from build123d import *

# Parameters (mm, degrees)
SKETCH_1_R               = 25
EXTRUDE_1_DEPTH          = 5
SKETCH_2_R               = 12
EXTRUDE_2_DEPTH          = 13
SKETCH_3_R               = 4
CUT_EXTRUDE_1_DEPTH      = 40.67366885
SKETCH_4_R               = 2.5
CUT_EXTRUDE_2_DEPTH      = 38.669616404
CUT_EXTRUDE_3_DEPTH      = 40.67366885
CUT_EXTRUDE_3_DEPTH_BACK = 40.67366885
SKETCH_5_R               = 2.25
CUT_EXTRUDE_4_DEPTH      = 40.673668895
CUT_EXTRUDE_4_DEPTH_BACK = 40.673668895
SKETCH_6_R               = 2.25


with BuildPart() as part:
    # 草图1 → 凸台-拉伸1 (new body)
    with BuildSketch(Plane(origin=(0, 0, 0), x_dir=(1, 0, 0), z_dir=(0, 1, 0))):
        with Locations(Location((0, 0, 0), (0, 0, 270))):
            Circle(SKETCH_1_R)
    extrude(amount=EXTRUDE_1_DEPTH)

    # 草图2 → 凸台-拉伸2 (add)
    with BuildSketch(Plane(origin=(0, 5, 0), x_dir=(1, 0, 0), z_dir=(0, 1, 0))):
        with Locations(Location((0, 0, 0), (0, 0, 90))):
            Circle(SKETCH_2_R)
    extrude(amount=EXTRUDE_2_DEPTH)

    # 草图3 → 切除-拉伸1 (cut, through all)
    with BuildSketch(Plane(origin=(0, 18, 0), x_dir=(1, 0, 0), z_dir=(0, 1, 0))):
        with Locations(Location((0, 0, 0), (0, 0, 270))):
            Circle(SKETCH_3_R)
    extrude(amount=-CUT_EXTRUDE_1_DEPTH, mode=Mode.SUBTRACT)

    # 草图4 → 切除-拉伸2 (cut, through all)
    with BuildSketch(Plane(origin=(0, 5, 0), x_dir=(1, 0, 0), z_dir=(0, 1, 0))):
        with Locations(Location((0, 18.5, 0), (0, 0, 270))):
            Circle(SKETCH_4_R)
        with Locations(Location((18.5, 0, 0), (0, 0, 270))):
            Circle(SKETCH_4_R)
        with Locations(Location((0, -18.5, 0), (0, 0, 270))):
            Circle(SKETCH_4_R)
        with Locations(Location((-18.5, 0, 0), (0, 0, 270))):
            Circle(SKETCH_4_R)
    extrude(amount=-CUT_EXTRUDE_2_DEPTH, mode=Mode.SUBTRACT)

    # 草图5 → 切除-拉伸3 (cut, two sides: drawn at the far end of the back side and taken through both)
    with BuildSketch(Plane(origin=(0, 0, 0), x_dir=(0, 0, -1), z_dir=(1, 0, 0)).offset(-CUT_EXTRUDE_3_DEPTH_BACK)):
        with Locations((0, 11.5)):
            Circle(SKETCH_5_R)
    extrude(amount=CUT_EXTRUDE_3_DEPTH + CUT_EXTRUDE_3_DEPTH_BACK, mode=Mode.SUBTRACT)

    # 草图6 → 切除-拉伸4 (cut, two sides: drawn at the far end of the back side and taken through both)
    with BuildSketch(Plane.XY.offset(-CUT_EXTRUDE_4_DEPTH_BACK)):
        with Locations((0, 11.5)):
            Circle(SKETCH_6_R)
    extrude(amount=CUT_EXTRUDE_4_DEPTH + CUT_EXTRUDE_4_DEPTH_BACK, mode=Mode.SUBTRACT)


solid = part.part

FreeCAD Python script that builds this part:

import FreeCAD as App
import Part
import Sketcher

V = App.Vector

doc = App.newDocument("Part")
body = doc.addObject("PartDesign::Body", "Body")

sketch1 = body.newObject("Sketcher::SketchObject", "Sketch")
sketch1.AttachmentSupport = (doc.getObject("XZ_Plane"), [""])
sketch1.MapMode = "FlatFace"
sketch1.addGeometry(Part.Circle(V(0, 0, 0), V(0, 0, 1), 25), False)
sketch1.addConstraint(Sketcher.Constraint("Coincident", 0, 3, -1, 1))
sketch1.addConstraint(Sketcher.Constraint("Diameter", 0, 50.0))
pad1 = body.newObject("PartDesign::Pad", "Pad")
pad1.Profile = sketch1
pad1.Length = 5
pad1.Reversed = True

sketch2 = body.newObject("Sketcher::SketchObject", "Sketch001")
sketch2.AttachmentSupport = (doc.getObject("XZ_Plane"), [""])
sketch2.MapMode = "FlatFace"
sketch2.AttachmentOffset = App.Placement(V(0, 0, -5), App.Rotation())
sketch2.addGeometry(Part.Circle(V(0, 0, 0), V(0, 0, 1), 12), False)
sketch2.addConstraint(Sketcher.Constraint("Coincident", 0, 3, -1, 1))
sketch2.addConstraint(Sketcher.Constraint("Diameter", 0, 24.0))
pad2 = body.newObject("PartDesign::Pad", "Pad001")
pad2.Profile = sketch2
pad2.Length = 13
pad2.Reversed = True

sketch3 = body.newObject("Sketcher::SketchObject", "Sketch002")
sketch3.AttachmentSupport = (doc.getObject("XZ_Plane"), [""])
sketch3.MapMode = "FlatFace"
sketch3.AttachmentOffset = App.Placement(V(0, 0, -18), App.Rotation())
sketch3.addGeometry(Part.Circle(V(0, 0, 0), V(0, 0, 1), 4), False)
sketch3.addConstraint(Sketcher.Constraint("Coincident", 0, 3, -1, 1))
sketch3.addConstraint(Sketcher.Constraint("Diameter", 0, 8.0))
pocket1 = body.newObject("PartDesign::Pocket", "Pocket")
pocket1.Profile = sketch3
pocket1.Type = "ThroughAll"
pocket1.Reversed = True

sketch4 = body.newObject("Sketcher::SketchObject", "Sketch003")
sketch4.AttachmentSupport = (doc.getObject("XZ_Plane"), [""])
sketch4.MapMode = "FlatFace"
sketch4.AttachmentOffset = App.Placement(V(0, 0, -5), App.Rotation())
sketch4.addGeometry(Part.Circle(V(0, -18.5, 0), V(0, 0, 1), 2.5), False)
sketch4.addGeometry(Part.Circle(V(18.5, 0, 0), V(0, 0, 1), 2.5), False)
sketch4.addGeometry(Part.Circle(V(0, 18.5, 0), V(0, 0, 1), 2.5), False)
sketch4.addGeometry(Part.Circle(V(-18.5, 0, 0), V(0, 0, 1), 2.5), False)
sketch4.addConstraint(Sketcher.Constraint("Equal", 0, 1))
sketch4.addConstraint(Sketcher.Constraint("Equal", 1, 2))
sketch4.addConstraint(Sketcher.Constraint("Equal", 2, 3))
sketch4.addConstraint(Sketcher.Constraint("Symmetric", 0, 3, 2, 3, -1, 1))
sketch4.addConstraint(Sketcher.Constraint("Symmetric", 1, 3, 3, 3, -1, 1))
sketch4.addConstraint(Sketcher.Constraint("PointOnObject", 0, 3, -2))
sketch4.addConstraint(Sketcher.Constraint("PointOnObject", 1, 3, -1))
sketch4.addConstraint(Sketcher.Constraint("Diameter", 0, 5.0))
sketch4.addConstraint(Sketcher.Constraint("DistanceY", 0, 3, 2, 3, 37.0))
sketch4.addConstraint(Sketcher.Constraint("DistanceX", 3, 3, 1, 3, 37.0))
pocket2 = body.newObject("PartDesign::Pocket", "Pocket001")
pocket2.Profile = sketch4
pocket2.Type = "ThroughAll"
pocket2.Reversed = True

sketch5 = body.newObject("Sketcher::SketchObject", "Sketch004")
sketch5.AttachmentSupport = (doc.getObject("YZ_Plane"), [""])
sketch5.MapMode = "FlatFace"
sketch5.addGeometry(Part.Circle(V(11.5, 0, 0), V(0, 0, 1), 2.2), False)
sketch5.addConstraint(Sketcher.Constraint("PointOnObject", 0, 3, -1))
sketch5.addConstraint(Sketcher.Constraint("Diameter", 0, 4.5))
sketch5.addConstraint(Sketcher.Constraint("DistanceX", -1, 1, 0, 3, 11.5))
pocket3 = body.newObject("PartDesign::Pocket", "Pocket002")
pocket3.Profile = sketch5
pocket3.Type = "ThroughAll"
pocket3.Midplane = True

sketch6 = body.newObject("Sketcher::SketchObject", "Sketch005")
sketch6.AttachmentSupport = (doc.getObject("XY_Plane"), [""])
sketch6.MapMode = "FlatFace"
sketch6.addGeometry(Part.Circle(V(0, 11.5, 0), V(0, 0, 1), 2.2), False)
sketch6.addConstraint(Sketcher.Constraint("PointOnObject", 0, 3, -2))
sketch6.addConstraint(Sketcher.Constraint("Diameter", 0, 4.5))
sketch6.addConstraint(Sketcher.Constraint("DistanceY", -1, 1, 0, 3, 11.5))
pocket4 = body.newObject("PartDesign::Pocket", "Pocket003")
pocket4.Profile = sketch6
pocket4.Type = "ThroughAll"
pocket4.Midplane = True

doc.recompute()
